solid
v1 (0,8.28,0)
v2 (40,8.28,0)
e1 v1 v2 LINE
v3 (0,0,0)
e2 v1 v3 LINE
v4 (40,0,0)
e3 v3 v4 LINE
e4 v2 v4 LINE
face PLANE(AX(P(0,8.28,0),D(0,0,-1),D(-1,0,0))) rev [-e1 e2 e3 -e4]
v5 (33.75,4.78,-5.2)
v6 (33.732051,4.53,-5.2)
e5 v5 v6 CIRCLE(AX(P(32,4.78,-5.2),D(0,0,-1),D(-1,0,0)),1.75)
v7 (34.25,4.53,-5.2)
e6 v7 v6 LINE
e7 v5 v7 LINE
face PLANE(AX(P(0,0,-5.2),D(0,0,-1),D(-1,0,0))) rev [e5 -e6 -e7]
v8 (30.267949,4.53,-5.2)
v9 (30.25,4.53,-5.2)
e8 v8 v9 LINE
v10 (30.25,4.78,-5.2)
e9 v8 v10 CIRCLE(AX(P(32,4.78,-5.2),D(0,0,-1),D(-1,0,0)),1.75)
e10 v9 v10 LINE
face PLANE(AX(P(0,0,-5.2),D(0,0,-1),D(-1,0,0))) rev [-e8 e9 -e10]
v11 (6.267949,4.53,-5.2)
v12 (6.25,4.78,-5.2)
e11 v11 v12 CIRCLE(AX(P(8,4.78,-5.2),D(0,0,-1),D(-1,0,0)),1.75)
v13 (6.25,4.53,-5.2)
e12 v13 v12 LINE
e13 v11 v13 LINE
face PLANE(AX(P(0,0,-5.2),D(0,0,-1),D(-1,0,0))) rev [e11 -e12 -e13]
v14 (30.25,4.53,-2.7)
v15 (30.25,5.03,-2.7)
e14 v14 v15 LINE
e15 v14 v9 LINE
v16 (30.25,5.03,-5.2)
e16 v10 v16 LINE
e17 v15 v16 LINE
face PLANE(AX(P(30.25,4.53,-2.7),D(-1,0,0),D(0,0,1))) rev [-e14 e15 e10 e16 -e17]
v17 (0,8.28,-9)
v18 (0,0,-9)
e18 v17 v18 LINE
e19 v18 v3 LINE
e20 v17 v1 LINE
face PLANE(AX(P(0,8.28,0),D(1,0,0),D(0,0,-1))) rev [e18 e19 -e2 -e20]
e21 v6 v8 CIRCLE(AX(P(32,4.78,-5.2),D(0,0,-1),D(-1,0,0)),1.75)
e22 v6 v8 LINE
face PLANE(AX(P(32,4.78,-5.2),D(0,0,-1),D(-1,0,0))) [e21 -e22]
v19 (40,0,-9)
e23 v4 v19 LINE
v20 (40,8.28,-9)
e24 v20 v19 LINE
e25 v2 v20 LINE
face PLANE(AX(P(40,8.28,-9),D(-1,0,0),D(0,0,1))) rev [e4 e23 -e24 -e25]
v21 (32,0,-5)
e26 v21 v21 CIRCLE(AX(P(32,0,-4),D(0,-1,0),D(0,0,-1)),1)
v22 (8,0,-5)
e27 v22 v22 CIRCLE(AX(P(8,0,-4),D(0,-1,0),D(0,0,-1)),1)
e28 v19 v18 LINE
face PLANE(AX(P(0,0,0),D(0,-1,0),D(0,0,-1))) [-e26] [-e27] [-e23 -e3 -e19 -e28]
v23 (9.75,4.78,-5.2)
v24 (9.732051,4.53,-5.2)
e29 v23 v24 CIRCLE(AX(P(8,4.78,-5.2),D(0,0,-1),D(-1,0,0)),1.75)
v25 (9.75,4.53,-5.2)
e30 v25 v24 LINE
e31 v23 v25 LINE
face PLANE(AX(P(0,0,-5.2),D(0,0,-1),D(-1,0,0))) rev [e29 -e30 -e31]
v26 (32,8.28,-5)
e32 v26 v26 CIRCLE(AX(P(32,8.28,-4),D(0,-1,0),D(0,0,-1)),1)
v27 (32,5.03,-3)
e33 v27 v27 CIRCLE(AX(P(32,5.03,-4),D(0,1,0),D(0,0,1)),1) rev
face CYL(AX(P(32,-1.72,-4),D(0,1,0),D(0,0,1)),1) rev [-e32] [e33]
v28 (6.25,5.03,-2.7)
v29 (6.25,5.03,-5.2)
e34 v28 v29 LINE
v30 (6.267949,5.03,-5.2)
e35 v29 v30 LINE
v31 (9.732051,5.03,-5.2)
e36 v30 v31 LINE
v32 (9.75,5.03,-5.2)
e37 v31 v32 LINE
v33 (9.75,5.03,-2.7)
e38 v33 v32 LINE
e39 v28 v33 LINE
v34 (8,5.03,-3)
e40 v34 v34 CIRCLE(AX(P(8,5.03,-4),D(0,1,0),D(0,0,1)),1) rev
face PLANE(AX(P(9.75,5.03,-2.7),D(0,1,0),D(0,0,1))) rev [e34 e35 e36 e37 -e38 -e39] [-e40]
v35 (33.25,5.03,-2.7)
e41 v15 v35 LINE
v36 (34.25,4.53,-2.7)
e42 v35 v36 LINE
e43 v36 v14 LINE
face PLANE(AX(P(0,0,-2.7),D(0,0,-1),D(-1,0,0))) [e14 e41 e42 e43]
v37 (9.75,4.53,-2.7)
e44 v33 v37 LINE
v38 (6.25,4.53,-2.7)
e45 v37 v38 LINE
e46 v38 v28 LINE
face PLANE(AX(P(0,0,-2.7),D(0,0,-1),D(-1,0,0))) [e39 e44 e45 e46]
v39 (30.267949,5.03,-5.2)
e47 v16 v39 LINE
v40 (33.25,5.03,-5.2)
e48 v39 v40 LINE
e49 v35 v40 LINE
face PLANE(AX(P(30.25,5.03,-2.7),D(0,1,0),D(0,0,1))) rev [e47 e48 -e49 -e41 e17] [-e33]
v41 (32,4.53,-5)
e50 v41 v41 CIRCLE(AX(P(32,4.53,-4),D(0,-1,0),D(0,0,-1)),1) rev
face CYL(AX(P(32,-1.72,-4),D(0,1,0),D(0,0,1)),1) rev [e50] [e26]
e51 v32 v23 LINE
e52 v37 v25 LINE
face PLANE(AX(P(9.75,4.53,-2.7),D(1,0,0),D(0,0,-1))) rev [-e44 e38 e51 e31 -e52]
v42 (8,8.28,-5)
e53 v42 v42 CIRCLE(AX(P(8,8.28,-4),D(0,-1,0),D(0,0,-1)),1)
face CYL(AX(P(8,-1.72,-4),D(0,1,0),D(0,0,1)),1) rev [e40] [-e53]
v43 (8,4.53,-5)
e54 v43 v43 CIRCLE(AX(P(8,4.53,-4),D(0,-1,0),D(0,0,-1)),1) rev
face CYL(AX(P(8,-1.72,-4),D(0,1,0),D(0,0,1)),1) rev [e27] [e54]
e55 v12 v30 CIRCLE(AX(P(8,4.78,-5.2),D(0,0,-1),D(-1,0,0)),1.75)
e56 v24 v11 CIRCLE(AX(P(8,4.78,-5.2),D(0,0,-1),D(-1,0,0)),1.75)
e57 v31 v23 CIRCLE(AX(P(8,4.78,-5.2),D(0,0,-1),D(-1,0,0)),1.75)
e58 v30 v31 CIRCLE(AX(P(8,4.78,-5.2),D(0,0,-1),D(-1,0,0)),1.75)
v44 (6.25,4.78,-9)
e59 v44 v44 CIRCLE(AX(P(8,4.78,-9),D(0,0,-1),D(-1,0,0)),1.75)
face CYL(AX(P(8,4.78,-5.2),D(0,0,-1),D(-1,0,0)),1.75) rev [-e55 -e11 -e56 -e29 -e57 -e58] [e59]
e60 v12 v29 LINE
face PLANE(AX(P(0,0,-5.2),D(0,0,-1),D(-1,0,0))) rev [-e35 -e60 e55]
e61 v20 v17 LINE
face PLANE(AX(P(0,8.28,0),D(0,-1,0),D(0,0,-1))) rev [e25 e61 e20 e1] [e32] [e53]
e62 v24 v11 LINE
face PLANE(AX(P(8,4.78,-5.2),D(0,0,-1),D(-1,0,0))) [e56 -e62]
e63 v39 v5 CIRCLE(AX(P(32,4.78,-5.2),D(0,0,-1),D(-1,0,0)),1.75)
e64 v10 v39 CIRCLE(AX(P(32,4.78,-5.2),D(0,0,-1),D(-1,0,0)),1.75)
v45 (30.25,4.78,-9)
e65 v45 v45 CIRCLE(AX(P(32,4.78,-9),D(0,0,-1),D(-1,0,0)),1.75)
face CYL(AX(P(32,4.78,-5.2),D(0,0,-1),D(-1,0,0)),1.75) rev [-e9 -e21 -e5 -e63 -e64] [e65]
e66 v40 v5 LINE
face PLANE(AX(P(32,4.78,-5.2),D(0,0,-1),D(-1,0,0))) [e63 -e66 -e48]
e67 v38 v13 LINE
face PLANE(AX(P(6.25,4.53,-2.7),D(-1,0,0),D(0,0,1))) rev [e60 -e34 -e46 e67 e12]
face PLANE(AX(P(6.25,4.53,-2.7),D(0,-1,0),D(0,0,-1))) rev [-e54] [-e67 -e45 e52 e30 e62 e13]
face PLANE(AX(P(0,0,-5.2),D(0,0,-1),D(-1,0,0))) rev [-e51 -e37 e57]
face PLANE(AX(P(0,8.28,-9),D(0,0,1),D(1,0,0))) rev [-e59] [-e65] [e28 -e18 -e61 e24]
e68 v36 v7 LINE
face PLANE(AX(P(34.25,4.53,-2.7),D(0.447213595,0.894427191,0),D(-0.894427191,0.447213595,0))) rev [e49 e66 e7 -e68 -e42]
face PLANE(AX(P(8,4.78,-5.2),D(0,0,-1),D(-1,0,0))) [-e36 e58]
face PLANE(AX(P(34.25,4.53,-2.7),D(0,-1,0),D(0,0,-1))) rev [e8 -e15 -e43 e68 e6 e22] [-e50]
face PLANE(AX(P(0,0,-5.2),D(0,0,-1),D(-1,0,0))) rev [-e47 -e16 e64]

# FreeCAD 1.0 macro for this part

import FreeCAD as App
import Part
import Sketcher
from FreeCAD import Vector
Q = App.Units.Quantity


def add_polygon(sketch, points):
    """Adds a closed chain of lines whose ends are joined by coincident constraints."""
    first, n = sketch.GeometryCount, len(points)
    for a, b in zip(points, points[1:] + points[:1]):
        sketch.addGeometry(Part.LineSegment(App.Vector(*a, 0), App.Vector(*b, 0)), False)
    for i in range(n):
        sketch.addConstraint(Sketcher.Constraint("Coincident", first + i, 2, first + (i + 1) % n, 1))

doc = App.newDocument("Part")
body = doc.addObject("PartDesign::Body", "Body")

# Sketch on XZ plane
sketch1 = body.newObject("Sketcher::SketchObject", "Sketch")
sketch1.AttachmentSupport = (doc.getObject("XZ_Plane"), [""])
sketch1.MapMode = "FlatFace"
add_polygon(sketch1, [(0, -9), (0, 0), (40, 0), (40, -9)])  # lines 0-3
sketch1.addConstraint(Sketcher.Constraint("Vertical", 0))
sketch1.addConstraint(Sketcher.Constraint("Horizontal", 1))
sketch1.addConstraint(Sketcher.Constraint("Vertical", 2))
sketch1.addConstraint(Sketcher.Constraint("Horizontal", 3))
sketch1.addConstraint(Sketcher.Constraint("Coincident", 0, 2, -1, 1))
sketch1.addConstraint(Sketcher.Constraint("DistanceX", 1, 1, 1, 2, Q("40 mm")))
sketch1.addConstraint(Sketcher.Constraint("DistanceY", 0, 1, 0, 2, Q("9 mm")))
pad1 = body.newObject("PartDesign::Pad", "Pad")
pad1.Profile = sketch1
pad1.Length = 8.28
pad1.Reversed = True

# Sketch on XZ plane
sketch2 = body.newObject("Sketcher::SketchObject", "Sketch001")
sketch2.AttachmentSupport = (doc.getObject("XZ_Plane"), [""])
sketch2.MapMode = "FlatFace"
sketch2.AttachmentOffset = App.Placement(Vector(0, 0, -8.28), App.Rotation())
sketch2.addGeometry(Part.Circle(Vector(8, -4, 0), Vector(0, 0, 1), 1), False)
sketch2.addGeometry(Part.Circle(Vector(32, -4, 0), Vector(0, 0, 1), 1), False)
sketch2.addConstraint(Sketcher.Constraint("Equal", 0, 1))
sketch2.addConstraint(Sketcher.Constraint("Horizontal", 0, 3, 1, 3))
sketch2.addConstraint(Sketcher.Constraint("Diameter", 0, Q("2 mm")))
sketch2.addConstraint(Sketcher.Constraint("DistanceX", -1, 1, 0, 3, Q("8 mm")))
sketch2.addConstraint(Sketcher.Constraint("DistanceY", 0, 3, -1, 1, Q("4 mm")))
sketch2.addConstraint(Sketcher.Constraint("DistanceX", -1, 1, 1, 3, Q("32 mm")))
pocket1 = body.newObject("PartDesign::Pocket", "Pocket")
pocket1.Profile = sketch2
pocket1.Type = "ThroughAll"
pocket1.Midplane = True

# Sketch on XY plane
sketch3 = body.newObject("Sketcher::SketchObject", "Sketch002")
sketch3.AttachmentSupport = (doc.getObject("XY_Plane"), [""])
sketch3.MapMode = "FlatFace"
sketch3.AttachmentOffset = App.Placement(Vector(0, 0, -9), App.Rotation())
sketch3.addGeometry(Part.Circle(Vector(32, 4.8, 0), Vector(0, 0, 1), 1.8), False)
sketch3.addGeometry(Part.Circle(Vector(8, 4.8, 0), Vector(0, 0, 1), 1.8), False)
sketch3.addConstraint(Sketcher.Constraint("Equal", 0, 1))
sketch3.addConstraint(Sketcher.Constraint("Horizontal", 0, 3, 1, 3))
sketch3.addConstraint(Sketcher.Constraint("Diameter", 0, Q("3.5 mm")))
sketch3.addConstraint(Sketcher.Constraint("DistanceX", -1, 1, 0, 3, Q("32 mm")))
sketch3.addConstraint(Sketcher.Constraint("DistanceX", -1, 1, 1, 3, Q("8 mm")))
sketch3.addConstraint(Sketcher.Constraint("DistanceY", -1, 1, 0, 3, Q("4.78 mm")))
pocket2 = body.newObject("PartDesign::Pocket", "Pocket001")
pocket2.Profile = sketch3
pocket2.Length = 3.8
pocket2.Reversed = True

# Sketch on XY plane
sketch4 = body.newObject("Sketcher::SketchObject", "Sketch003")
sketch4.AttachmentSupport = (doc.getObject("XY_Plane"), [""])
sketch4.MapMode = "FlatFace"
sketch4.AttachmentOffset = App.Placement(Vector(0, 0, -5.2), App.Rotation())
add_polygon(sketch4, [(30.2, 5), (33.2, 5), (34.2, 4.5), (30.2, 4.5)])  # lines 0-3
add_polygon(sketch4, [(9.8, 5), (9.8, 4.5), (6.2, 4.5), (6.2, 5)])  # lines 4-7
sketch4.addConstraint(Sketcher.Constraint("Horizontal", 0))
sketch4.addConstraint(Sketcher.Constraint("Horizontal", 2))
sketch4.addConstraint(Sketcher.Constraint("Vertical", 3))
sketch4.addConstraint(Sketcher.Constraint("Vertical", 4))
sketch4.addConstraint(Sketcher.Constraint("Horizontal", 5))
sketch4.addConstraint(Sketcher.Constraint("Vertical", 6))
sketch4.addConstraint(Sketcher.Constraint("Horizontal", 7))
sketch4.addConstraint(Sketcher.Constraint("Horizontal", 2, 2, 4, 2))
sketch4.addConstraint(Sketcher.Constraint("Horizontal", 3, 2, 6, 2))
sketch4.addConstraint(Sketcher.Constraint("DistanceX", 0, 1, 0, 2, Q("3 mm")))
sketch4.addConstraint(Sketcher.Constraint("DistanceX", 2, 2, 2, 1, Q("4 mm")))
sketch4.addConstraint(Sketcher.Constraint("DistanceX", 5, 2, 5, 1, Q("3.5 mm")))
sketch4.addConstraint(Sketcher.Constraint("DistanceY", 3, 1, 3, 2, Q("0.5 mm")))
sketch4.addConstraint(Sketcher.Constraint("DistanceX", 5, 2, 2, 2, Q("24 mm")))
sketch4.addConstraint(Sketcher.Constraint("DistanceX", -1, 1, 0, 2, Q("33.25 mm")))
sketch4.addConstraint(Sketcher.Constraint("DistanceY", -1, 1, 0, 2, Q("5.03 mm")))
pocket3 = body.newObject("PartDesign::Pocket", "Pocket002")
pocket3.Profile = sketch4
pocket3.Length = 2.5
pocket3.Reversed = True

doc.recompute()
